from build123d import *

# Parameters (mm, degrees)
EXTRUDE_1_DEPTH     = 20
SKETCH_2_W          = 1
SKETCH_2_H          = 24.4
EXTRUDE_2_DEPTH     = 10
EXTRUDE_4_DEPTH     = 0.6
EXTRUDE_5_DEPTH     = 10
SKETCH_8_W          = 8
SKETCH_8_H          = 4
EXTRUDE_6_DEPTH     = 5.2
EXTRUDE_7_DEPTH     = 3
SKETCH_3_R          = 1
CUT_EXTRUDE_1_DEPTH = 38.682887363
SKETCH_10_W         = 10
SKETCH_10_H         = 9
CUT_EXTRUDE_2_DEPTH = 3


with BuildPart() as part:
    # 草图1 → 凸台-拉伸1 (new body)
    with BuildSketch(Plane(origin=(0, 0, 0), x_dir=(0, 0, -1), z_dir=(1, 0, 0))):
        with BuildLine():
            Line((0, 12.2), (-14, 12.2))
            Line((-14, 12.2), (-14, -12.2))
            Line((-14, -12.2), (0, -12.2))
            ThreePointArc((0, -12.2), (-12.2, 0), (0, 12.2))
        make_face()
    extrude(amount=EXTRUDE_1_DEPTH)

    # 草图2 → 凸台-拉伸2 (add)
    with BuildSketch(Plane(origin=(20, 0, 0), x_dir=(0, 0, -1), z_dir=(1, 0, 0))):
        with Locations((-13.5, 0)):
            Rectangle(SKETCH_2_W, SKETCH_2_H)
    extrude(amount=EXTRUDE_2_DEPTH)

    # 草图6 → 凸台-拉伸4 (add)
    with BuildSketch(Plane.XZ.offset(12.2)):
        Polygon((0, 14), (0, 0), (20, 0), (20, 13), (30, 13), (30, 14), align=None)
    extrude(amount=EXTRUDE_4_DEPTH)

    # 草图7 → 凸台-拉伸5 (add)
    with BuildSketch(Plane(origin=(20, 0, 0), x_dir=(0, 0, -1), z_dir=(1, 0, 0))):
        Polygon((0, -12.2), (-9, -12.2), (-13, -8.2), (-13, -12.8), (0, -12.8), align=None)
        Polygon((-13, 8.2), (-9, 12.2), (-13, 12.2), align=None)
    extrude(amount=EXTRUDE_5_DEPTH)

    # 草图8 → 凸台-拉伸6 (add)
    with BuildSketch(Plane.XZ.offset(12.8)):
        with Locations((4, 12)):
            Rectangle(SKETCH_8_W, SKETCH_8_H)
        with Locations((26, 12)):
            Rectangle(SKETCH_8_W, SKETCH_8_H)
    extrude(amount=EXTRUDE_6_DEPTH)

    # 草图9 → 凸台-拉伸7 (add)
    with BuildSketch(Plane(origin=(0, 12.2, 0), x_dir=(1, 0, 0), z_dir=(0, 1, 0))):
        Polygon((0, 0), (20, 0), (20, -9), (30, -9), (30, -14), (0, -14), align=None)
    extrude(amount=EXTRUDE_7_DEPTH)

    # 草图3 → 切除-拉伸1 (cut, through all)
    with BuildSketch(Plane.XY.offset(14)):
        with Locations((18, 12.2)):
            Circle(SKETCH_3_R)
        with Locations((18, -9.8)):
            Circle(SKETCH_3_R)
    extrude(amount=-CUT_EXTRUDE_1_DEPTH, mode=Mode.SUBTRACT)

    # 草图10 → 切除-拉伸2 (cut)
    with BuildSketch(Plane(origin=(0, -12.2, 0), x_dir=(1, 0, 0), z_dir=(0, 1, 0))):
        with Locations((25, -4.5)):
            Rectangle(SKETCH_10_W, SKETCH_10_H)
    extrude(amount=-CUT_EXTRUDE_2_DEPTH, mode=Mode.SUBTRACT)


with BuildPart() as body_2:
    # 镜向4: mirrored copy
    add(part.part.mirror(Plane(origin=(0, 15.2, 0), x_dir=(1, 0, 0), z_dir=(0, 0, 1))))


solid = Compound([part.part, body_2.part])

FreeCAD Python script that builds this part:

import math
import FreeCAD as App
import Part
import Sketcher


def add_polygon(sketch, points):
    """Adds a closed chain of lines whose ends are joined by coincident constraints."""
    first, n = sketch.GeometryCount, len(points)
    for a, b in zip(points, points[1:] + points[:1]):
        sketch.addGeometry(Part.LineSegment(App.Vector(*a, 0), App.Vector(*b, 0)), False)
    for i in range(n):
        sketch.addConstraint(Sketcher.Constraint("Coincident", first + i, 2, first + (i + 1) % n, 1))

doc = App.newDocument("Part")
body = doc.addObject("PartDesign::Body", "Body")

# Sketch on YZ plane
sketch1 = body.newObject("Sketcher::SketchObject", "Sketch")
sketch1.AttachmentSupport = (doc.getObject("YZ_Plane"), [""])
sketch1.MapMode = "FlatFace"
sketch1.addGeometry(Part.LineSegment(App.Vector(12.2, 0, 0), App.Vector(12.2, 14, 0)), False)
sketch1.addGeometry(Part.LineSegment(App.Vector(12.2, 14, 0), App.Vector(-12.2, 14, 0)), False)
sketch1.addGeometry(Part.LineSegment(App.Vector(-12.2, 14, 0), App.Vector(-12.2, 0, 0)), False)
sketch1.addGeometry(Part.ArcOfCircle(Part.Circle(App.Vector(0, 0, 0), App.Vector(0, 0, 1), 12.2), math.radians(0), math.radians(180)), False)
sketch1.addConstraint(Sketcher.Constraint("Coincident", 0, 2, 1, 1))
sketch1.addConstraint(Sketcher.Constraint("Coincident", 1, 2, 2, 1))
sketch1.addConstraint(Sketcher.Constraint("Tangent", 2, 2, 3, 2))
sketch1.addConstraint(Sketcher.Constraint("Tangent", 3, 1, 0, 1))
sketch1.addConstraint(Sketcher.Constraint("Vertical", 0))
sketch1.addConstraint(Sketcher.Constraint("Horizontal", 1))
sketch1.addConstraint(Sketcher.Constraint("Vertical", 2))
sketch1.addConstraint(Sketcher.Constraint("Coincident", 3, 3, -1, 1))
sketch1.addConstraint(Sketcher.Constraint("Radius", 3, 12.2))
sketch1.addConstraint(Sketcher.Constraint("DistanceY", 0, 1, 0, 2, 14.0))
pad1 = body.newObject("PartDesign::Pad", "Pad")
pad1.Profile = sketch1
pad1.Length = 20

# Sketch on YZ plane
sketch2 = body.newObject("Sketcher::SketchObject", "Sketch001")
sketch2.AttachmentSupport = (doc.getObject("YZ_Plane"), [""])
sketch2.MapMode = "FlatFace"
sketch2.AttachmentOffset = App.Placement(App.Vector(0, 0, 20), App.Rotation())
add_polygon(sketch2, [(12.2, 14), (-12.2, 14), (-12.2, 13), (12.2, 13)])  # lines 0-3
sketch2.addConstraint(Sketcher.Constraint("Horizontal", 0))
sketch2.addConstraint(Sketcher.Constraint("Vertical", 1))
sketch2.addConstraint(Sketcher.Constraint("Horizontal", 2))
sketch2.addConstraint(Sketcher.Constraint("Vertical", 3))
sketch2.addConstraint(Sketcher.Constraint("DistanceY", 1, 2, 1, 1, 1.0))
sketch2.addConstraint(Sketcher.Constraint("DistanceX", 0, 2, 0, 1, 24.4))
sketch2.addConstraint(Sketcher.Constraint("DistanceY", -1, 1, 0, 2, 14.0))
sketch2.addConstraint(Sketcher.Constraint("DistanceX", 0, 2, -1, 1, 12.2))
pad2 = body.newObject("PartDesign::Pad", "Pad001")
pad2.Profile = sketch2
pad2.Length = 10

# Sketch on XZ plane
sketch3 = body.newObject("Sketcher::SketchObject", "Sketch002")
sketch3.AttachmentSupport = (doc.getObject("XZ_Plane"), [""])
sketch3.MapMode = "FlatFace"
sketch3.AttachmentOffset = App.Placement(App.Vector(0, 0, 12.2), App.Rotation())
add_polygon(sketch3, [(0, 14), (0, 0), (20, 0), (20, 13), (30, 13), (30, 14)])  # lines 0-5
sketch3.addConstraint(Sketcher.Constraint("Vertical", 0))
sketch3.addConstraint(Sketcher.Constraint("Horizontal", 1))
sketch3.addConstraint(Sketcher.Constraint("Vertical", 2))
sketch3.addConstraint(Sketcher.Constraint("Horizontal", 3))
sketch3.addConstraint(Sketcher.Constraint("Vertical", 4))
sketch3.addConstraint(Sketcher.Constraint("Horizontal", 5))
sketch3.addConstraint(Sketcher.Constraint("Coincident", 0, 2, -1, 1))
sketch3.addConstraint(Sketcher.Constraint("DistanceX", 1, 1, 1, 2, 20.0))
sketch3.addConstraint(Sketcher.Constraint("DistanceX", 3, 1, 3, 2, 10.0))
sketch3.addConstraint(Sketcher.Constraint("DistanceY", 0, 2, 0, 1, 14.0))
sketch3.addConstraint(Sketcher.Constraint("DistanceY", 2, 1, 2, 2, 13.0))
pad3 = body.newObject("PartDesign::Pad", "Pad002")
pad3.Profile = sketch3
pad3.Length = 0.6

# Sketch on YZ plane
sketch4 = body.newObject("Sketcher::SketchObject", "Sketch003")
sketch4.AttachmentSupport = (doc.getObject("YZ_Plane"), [""])
sketch4.MapMode = "FlatFace"
sketch4.AttachmentOffset = App.Placement(App.Vector(0, 0, 20), App.Rotation())
add_polygon(sketch4, [(-12.2, 0), (-12.2, 9), (-8.2, 13), (-12.8, 13), (-12.8, 0)])  # lines 0-4
add_polygon(sketch4, [(8.2, 13), (12.2, 9), (12.2, 13)])  # lines 5-7
sketch4.addConstraint(Sketcher.Constraint("Vertical", 0))
sketch4.addConstraint(Sketcher.Constraint("Horizontal", 2))
sketch4.addConstraint(Sketcher.Constraint("Vertical", 3))
sketch4.addConstraint(Sketcher.Constraint("Horizontal", 4))
sketch4.addConstraint(Sketcher.Constraint("Vertical", 6))
sketch4.addConstraint(Sketcher.Constraint("Horizontal", 7))
sketch4.addConstraint(Sketcher.Constraint("Symmetric", 0, 2, 5, 2, -2))
sketch4.addConstraint(Sketcher.Constraint("Symmetric", 1, 2, 7, 2, -2))
sketch4.addConstraint(Sketcher.Constraint("PointOnObject", 3, 2, -1))
sketch4.addConstraint(Sketcher.Constraint("Perpendicular", 1, 5))
sketch4.addConstraint(Sketcher.Constraint("DistanceX", 7, 2, 7, 1, 4.0))
sketch4.addConstraint(Sketcher.Constraint("DistanceY", 0, 1, 0, 2, 9.0))
sketch4.addConstraint(Sketcher.Constraint("DistanceX", 2, 2, 2, 1, 4.6))
sketch4.addConstraint(Sketcher.Constraint("DistanceX", 2, 2, 5, 2, 25.0))
pad4 = body.newObject("PartDesign::Pad", "Pad003")
pad4.Profile = sketch4
pad4.Length = 10

# Sketch on XZ plane
sketch5 = body.newObject("Sketcher::SketchObject", "Sketch004")
sketch5.AttachmentSupport = (doc.getObject("XZ_Plane"), [""])
sketch5.MapMode = "FlatFace"
sketch5.AttachmentOffset = App.Placement(App.Vector(0, 0, 12.8), App.Rotation())
add_polygon(sketch5, [(0, 14), (0, 10), (8, 10), (8, 14)])  # lines 0-3
add_polygon(sketch5, [(22, 14), (22, 10), (30, 10), (30, 14)])  # lines 4-7
sketch5.addConstraint(Sketcher.Constraint("Vertical", 0))
sketch5.addConstraint(Sketcher.Constraint("Horizontal", 1))
sketch5.addConstraint(Sketcher.Constraint("Vertical", 2))
sketch5.addConstraint(Sketcher.Constraint("Horizontal", 3))
sketch5.addConstraint(Sketcher.Constraint("Vertical", 4))
sketch5.addConstraint(Sketcher.Constraint("Horizontal", 5))
sketch5.addConstraint(Sketcher.Constraint("Vertical", 6))
sketch5.addConstraint(Sketcher.Constraint("Horizontal", 7))
sketch5.addConstraint(Sketcher.Constraint("PointOnObject", 0, 2, -2))
sketch5.addConstraint(Sketcher.Constraint("Horizontal", 1, 2, 4, 2))
sketch5.addConstraint(Sketcher.Constraint("Horizontal", 3, 2, 6, 2))
sketch5.addConstraint(Sketcher.Constraint("Equal", 3, 5))
sketch5.addConstraint(Sketcher.Constraint("DistanceX", 1, 1, 1, 2, 8.0))
sketch5.addConstraint(Sketcher.Constraint("DistanceY", 0, 2, 0, 1, 4.0))
sketch5.addConstraint(Sketcher.Constraint("DistanceY", -1, 1, 0, 2, 10.0))
sketch5.addConstraint(Sketcher.Constraint("DistanceX", -1, 1, 4, 2, 22.0))
pad5 = body.newObject("PartDesign::Pad", "Pad004")
pad5.Profile = sketch5
pad5.Length = 5.2

# Sketch on XZ plane
sketch6 = body.newObject("Sketcher::SketchObject", "Sketch005")
sketch6.AttachmentSupport = (doc.getObject("XZ_Plane"), [""])
sketch6.MapMode = "FlatFace"
sketch6.AttachmentOffset = App.Placement(App.Vector(0, 0, -12.2), App.Rotation())
add_polygon(sketch6, [(20, 0), (0, 0), (0, 14), (30, 14), (30, 9), (20, 9)])  # lines 0-5
sketch6.addConstraint(Sketcher.Constraint("Horizontal", 0))
sketch6.addConstraint(Sketcher.Constraint("Vertical", 1))
sketch6.addConstraint(Sketcher.Constraint("Horizontal", 2))
sketch6.addConstraint(Sketcher.Constraint("Vertical", 3))
sketch6.addConstraint(Sketcher.Constraint("Horizontal", 4))
sketch6.addConstraint(Sketcher.Constraint("Vertical", 5))
sketch6.addConstraint(Sketcher.Constraint("Coincident", 0, 2, -1, 1))
sketch6.addConstraint(Sketcher.Constraint("DistanceX", 0, 2, 0, 1, 20.0))
sketch6.addConstraint(Sketcher.Constraint("DistanceX", 2, 1, 2, 2, 30.0))
sketch6.addConstraint(Sketcher.Constraint("DistanceY", 1, 1, 1, 2, 14.0))
sketch6.addConstraint(Sketcher.Constraint("DistanceY", 3, 2, 3, 1, 5.0))
pad6 = body.newObject("PartDesign::Pad", "Pad005")
pad6.Profile = sketch6
pad6.Length = 3
pad6.Reversed = True

# Sketch on XY plane
sketch7 = body.newObject("Sketcher::SketchObject", "Sketch006")
sketch7.AttachmentSupport = (doc.getObject("XY_Plane"), [""])
sketch7.MapMode = "FlatFace"
sketch7.AttachmentOffset = App.Placement(App.Vector(0, 0, 14), App.Rotation())
sketch7.addGeometry(Part.Circle(App.Vector(18, 12.2, 0), App.Vector(0, 0, 1), 1), False)
sketch7.addGeometry(Part.Circle(App.Vector(18, -9.8, 0), App.Vector(0, 0, 1), 1), False)
sketch7.addConstraint(Sketcher.Constraint("Equal", 0, 1))
sketch7.addConstraint(Sketcher.Constraint("Vertical", 0, 3, 1, 3))
sketch7.addConstraint(Sketcher.Constraint("Diameter", 0, 2.0))
sketch7.addConstraint(Sketcher.Constraint("DistanceX", -1, 1, 0, 3, 18.0))
sketch7.addConstraint(Sketcher.Constraint("DistanceY", 1, 3, 0, 3, 22.0))
sketch7.addConstraint(Sketcher.Constraint("DistanceY", -1, 1, 0, 3, 12.2))
pocket1 = body.newObject("PartDesign::Pocket", "Pocket")
pocket1.Profile = sketch7
pocket1.Type = "ThroughAll"

# Sketch on XZ plane
sketch8 = body.newObject("Sketcher::SketchObject", "Sketch007")
sketch8.AttachmentSupport = (doc.getObject("XZ_Plane"), [""])
sketch8.MapMode = "FlatFace"
sketch8.AttachmentOffset = App.Placement(App.Vector(0, 0, 12.2), App.Rotation())
add_polygon(sketch8, [(20, 0), (20, 9), (30, 9), (30, 0)])  # lines 0-3
sketch8.addConstraint(Sketcher.Constraint("Vertical", 0))
sketch8.addConstraint(Sketcher.Constraint("Horizontal", 1))
sketch8.addConstraint(Sketcher.Constraint("Vertical", 2))
sketch8.addConstraint(Sketcher.Constraint("Horizontal", 3))
sketch8.addConstraint(Sketcher.Constraint("PointOnObject", 2, 2, -1))
sketch8.addConstraint(Sketcher.Constraint("DistanceX", 1, 1, 1, 2, 10.0))
sketch8.addConstraint(Sketcher.Constraint("DistanceY", 0, 1, 0, 2, 9.0))
sketch8.addConstraint(Sketcher.Constraint("DistanceX", -1, 1, 0, 2, 20.0))
pocket2 = body.newObject("PartDesign::Pocket", "Pocket001")
pocket2.Profile = sketch8
pocket2.Length = 3
pocket2.Reversed = True
body2 = doc.addObject("PartDesign::Body", "Body001")
doc.recompute()

mirroring = doc.addObject("Part::Mirroring", "Mirroring")
mirroring.Source = body
mirroring.Base = App.Vector(0, 15.2, 0)
mirroring.Normal = App.Vector(0, 0, 1)
body2.BaseFeature = mirroring
doc.recompute()
mirroring.Visibility = False

doc.recompute()
